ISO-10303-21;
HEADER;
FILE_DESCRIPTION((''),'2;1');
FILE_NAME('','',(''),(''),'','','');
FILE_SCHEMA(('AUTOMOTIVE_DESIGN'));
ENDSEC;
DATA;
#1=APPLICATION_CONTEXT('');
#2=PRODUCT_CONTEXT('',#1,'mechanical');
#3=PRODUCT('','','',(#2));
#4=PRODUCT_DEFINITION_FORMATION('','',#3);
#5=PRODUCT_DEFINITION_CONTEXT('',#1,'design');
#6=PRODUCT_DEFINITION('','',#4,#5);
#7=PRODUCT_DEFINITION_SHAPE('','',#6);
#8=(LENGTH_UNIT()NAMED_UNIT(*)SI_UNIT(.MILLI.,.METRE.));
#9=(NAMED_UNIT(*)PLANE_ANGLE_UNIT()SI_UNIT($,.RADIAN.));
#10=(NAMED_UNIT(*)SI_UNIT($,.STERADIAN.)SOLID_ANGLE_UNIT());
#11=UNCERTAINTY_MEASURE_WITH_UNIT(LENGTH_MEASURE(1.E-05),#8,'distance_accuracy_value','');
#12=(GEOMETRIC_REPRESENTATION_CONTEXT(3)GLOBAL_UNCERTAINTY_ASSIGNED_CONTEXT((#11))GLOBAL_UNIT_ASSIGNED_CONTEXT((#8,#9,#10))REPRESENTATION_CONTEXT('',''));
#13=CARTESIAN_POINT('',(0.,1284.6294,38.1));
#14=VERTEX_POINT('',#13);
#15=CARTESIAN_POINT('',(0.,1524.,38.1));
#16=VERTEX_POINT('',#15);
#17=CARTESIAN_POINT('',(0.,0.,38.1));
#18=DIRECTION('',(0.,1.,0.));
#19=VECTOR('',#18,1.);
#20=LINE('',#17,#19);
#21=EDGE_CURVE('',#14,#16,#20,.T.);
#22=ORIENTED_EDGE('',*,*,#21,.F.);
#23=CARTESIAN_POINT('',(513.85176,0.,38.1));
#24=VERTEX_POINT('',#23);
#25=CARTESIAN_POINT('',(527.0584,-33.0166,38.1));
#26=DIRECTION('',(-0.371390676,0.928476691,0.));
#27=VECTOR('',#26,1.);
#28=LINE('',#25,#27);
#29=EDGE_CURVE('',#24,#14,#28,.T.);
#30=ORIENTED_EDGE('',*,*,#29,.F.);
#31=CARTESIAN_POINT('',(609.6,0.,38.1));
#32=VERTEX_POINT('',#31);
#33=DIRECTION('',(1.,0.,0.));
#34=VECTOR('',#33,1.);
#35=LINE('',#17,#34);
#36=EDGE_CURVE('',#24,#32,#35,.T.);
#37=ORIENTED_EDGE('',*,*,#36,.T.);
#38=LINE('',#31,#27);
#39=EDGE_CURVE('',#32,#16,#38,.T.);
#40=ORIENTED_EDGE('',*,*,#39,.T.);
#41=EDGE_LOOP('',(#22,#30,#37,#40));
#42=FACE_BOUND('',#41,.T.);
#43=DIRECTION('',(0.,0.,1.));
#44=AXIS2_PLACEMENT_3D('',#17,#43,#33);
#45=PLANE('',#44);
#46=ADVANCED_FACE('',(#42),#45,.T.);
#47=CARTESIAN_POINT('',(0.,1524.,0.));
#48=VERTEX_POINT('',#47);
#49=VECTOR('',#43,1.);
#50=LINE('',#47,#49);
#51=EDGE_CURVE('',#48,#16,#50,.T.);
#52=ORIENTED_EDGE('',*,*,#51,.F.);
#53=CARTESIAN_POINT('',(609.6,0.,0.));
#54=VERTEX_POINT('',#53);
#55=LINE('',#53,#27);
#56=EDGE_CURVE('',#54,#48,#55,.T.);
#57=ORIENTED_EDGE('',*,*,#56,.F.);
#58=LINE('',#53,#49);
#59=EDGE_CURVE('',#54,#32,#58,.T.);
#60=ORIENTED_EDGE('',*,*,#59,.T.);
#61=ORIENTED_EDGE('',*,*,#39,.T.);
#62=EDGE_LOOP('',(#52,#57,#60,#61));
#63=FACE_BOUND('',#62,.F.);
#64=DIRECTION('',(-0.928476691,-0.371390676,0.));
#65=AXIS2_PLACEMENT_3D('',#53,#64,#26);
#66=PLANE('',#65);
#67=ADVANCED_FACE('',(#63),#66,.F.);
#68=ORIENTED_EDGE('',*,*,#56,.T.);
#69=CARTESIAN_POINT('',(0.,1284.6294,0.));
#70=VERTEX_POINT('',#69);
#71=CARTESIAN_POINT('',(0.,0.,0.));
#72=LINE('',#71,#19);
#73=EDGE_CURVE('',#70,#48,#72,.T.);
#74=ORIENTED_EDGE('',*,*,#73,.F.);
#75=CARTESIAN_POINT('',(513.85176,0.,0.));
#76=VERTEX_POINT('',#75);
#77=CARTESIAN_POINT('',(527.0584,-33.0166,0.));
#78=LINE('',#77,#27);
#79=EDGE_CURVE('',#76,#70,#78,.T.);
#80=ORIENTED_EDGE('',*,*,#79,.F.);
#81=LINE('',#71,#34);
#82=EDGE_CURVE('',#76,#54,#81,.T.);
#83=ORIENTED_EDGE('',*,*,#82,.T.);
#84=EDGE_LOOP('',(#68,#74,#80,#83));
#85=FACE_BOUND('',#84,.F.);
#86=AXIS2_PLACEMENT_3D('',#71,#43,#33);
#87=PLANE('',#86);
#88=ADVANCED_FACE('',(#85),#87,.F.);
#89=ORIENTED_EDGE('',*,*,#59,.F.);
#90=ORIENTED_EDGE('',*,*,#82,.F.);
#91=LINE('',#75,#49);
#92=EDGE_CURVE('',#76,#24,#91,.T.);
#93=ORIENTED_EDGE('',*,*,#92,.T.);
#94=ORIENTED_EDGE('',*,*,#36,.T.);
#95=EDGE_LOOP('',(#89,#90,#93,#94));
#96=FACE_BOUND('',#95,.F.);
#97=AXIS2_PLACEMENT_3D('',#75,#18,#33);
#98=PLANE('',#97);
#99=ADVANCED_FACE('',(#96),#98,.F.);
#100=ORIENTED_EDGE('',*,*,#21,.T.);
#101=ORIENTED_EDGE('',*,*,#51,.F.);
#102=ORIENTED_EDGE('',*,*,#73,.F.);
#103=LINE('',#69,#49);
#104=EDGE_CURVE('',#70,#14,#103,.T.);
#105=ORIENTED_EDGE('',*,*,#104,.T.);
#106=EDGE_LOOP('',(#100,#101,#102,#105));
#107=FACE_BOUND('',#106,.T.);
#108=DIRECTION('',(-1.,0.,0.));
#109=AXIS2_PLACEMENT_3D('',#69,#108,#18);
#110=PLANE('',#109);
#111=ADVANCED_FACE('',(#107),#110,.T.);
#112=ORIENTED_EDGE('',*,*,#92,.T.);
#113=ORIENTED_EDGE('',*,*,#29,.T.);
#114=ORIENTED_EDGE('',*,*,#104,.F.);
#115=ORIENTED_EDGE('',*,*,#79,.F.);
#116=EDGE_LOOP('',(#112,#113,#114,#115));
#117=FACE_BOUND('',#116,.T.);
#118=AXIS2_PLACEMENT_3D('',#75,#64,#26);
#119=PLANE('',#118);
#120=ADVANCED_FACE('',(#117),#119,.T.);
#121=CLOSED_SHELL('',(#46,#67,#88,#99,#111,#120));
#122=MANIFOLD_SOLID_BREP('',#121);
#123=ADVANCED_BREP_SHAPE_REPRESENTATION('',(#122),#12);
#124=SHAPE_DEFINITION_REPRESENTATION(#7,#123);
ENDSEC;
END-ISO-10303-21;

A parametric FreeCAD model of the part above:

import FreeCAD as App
import Part
import Sketcher
from FreeCAD import Vector
Q = App.Units.Quantity

doc = App.newDocument("Part")
body = doc.addObject("PartDesign::Body", "Body")

# Sketch on XY plane
sketch1 = body.newObject("Sketcher::SketchObject", "Sketch")
sketch1.AttachmentSupport = (doc.getObject("XY_Plane"), [""])
sketch1.MapMode = "FlatFace"
sketch1.addGeometry([
    Part.LineSegment(Vector(0, 1524, 0), Vector(0, 1285, 0)),
    Part.LineSegment(Vector(0, 1285, 0), Vector(514, 0, 0)),
    Part.LineSegment(Vector(514, 0, 0), Vector(610, 0, 0)),
    Part.LineSegment(Vector(610, 0, 0), Vector(0, 1524, 0)),
], False)
sketch1.addConstraint([
    Sketcher.Constraint("Coincident", 0, 2, 1, 1),
    Sketcher.Constraint("Coincident", 1, 2, 2, 1),
    Sketcher.Constraint("Coincident", 2, 2, 3, 1),
    Sketcher.Constraint("Coincident", 3, 2, 0, 1),
    Sketcher.Constraint("Vertical", 0),
    Sketcher.Constraint("Horizontal", 2),
    Sketcher.Constraint("PointOnObject", 0, 2, -2),
    Sketcher.Constraint("PointOnObject", 1, 2, -1),
    Sketcher.Constraint("Parallel", 1, 3),
    Sketcher.Constraint("DistanceX", -1, 1, 2, 2, Q("24 in")),
    Sketcher.Constraint("DistanceY", -1, 1, 3, 2, Q("60 in")),
    Sketcher.Constraint("DistanceX", 2, 1, 2, 2, Q("95.7482 mm")),
])
pad1 = body.newObject("PartDesign::Pad", "Pad")
pad1.Profile = sketch1
pad1.Length = Q("1.5 in")

doc.recompute()
